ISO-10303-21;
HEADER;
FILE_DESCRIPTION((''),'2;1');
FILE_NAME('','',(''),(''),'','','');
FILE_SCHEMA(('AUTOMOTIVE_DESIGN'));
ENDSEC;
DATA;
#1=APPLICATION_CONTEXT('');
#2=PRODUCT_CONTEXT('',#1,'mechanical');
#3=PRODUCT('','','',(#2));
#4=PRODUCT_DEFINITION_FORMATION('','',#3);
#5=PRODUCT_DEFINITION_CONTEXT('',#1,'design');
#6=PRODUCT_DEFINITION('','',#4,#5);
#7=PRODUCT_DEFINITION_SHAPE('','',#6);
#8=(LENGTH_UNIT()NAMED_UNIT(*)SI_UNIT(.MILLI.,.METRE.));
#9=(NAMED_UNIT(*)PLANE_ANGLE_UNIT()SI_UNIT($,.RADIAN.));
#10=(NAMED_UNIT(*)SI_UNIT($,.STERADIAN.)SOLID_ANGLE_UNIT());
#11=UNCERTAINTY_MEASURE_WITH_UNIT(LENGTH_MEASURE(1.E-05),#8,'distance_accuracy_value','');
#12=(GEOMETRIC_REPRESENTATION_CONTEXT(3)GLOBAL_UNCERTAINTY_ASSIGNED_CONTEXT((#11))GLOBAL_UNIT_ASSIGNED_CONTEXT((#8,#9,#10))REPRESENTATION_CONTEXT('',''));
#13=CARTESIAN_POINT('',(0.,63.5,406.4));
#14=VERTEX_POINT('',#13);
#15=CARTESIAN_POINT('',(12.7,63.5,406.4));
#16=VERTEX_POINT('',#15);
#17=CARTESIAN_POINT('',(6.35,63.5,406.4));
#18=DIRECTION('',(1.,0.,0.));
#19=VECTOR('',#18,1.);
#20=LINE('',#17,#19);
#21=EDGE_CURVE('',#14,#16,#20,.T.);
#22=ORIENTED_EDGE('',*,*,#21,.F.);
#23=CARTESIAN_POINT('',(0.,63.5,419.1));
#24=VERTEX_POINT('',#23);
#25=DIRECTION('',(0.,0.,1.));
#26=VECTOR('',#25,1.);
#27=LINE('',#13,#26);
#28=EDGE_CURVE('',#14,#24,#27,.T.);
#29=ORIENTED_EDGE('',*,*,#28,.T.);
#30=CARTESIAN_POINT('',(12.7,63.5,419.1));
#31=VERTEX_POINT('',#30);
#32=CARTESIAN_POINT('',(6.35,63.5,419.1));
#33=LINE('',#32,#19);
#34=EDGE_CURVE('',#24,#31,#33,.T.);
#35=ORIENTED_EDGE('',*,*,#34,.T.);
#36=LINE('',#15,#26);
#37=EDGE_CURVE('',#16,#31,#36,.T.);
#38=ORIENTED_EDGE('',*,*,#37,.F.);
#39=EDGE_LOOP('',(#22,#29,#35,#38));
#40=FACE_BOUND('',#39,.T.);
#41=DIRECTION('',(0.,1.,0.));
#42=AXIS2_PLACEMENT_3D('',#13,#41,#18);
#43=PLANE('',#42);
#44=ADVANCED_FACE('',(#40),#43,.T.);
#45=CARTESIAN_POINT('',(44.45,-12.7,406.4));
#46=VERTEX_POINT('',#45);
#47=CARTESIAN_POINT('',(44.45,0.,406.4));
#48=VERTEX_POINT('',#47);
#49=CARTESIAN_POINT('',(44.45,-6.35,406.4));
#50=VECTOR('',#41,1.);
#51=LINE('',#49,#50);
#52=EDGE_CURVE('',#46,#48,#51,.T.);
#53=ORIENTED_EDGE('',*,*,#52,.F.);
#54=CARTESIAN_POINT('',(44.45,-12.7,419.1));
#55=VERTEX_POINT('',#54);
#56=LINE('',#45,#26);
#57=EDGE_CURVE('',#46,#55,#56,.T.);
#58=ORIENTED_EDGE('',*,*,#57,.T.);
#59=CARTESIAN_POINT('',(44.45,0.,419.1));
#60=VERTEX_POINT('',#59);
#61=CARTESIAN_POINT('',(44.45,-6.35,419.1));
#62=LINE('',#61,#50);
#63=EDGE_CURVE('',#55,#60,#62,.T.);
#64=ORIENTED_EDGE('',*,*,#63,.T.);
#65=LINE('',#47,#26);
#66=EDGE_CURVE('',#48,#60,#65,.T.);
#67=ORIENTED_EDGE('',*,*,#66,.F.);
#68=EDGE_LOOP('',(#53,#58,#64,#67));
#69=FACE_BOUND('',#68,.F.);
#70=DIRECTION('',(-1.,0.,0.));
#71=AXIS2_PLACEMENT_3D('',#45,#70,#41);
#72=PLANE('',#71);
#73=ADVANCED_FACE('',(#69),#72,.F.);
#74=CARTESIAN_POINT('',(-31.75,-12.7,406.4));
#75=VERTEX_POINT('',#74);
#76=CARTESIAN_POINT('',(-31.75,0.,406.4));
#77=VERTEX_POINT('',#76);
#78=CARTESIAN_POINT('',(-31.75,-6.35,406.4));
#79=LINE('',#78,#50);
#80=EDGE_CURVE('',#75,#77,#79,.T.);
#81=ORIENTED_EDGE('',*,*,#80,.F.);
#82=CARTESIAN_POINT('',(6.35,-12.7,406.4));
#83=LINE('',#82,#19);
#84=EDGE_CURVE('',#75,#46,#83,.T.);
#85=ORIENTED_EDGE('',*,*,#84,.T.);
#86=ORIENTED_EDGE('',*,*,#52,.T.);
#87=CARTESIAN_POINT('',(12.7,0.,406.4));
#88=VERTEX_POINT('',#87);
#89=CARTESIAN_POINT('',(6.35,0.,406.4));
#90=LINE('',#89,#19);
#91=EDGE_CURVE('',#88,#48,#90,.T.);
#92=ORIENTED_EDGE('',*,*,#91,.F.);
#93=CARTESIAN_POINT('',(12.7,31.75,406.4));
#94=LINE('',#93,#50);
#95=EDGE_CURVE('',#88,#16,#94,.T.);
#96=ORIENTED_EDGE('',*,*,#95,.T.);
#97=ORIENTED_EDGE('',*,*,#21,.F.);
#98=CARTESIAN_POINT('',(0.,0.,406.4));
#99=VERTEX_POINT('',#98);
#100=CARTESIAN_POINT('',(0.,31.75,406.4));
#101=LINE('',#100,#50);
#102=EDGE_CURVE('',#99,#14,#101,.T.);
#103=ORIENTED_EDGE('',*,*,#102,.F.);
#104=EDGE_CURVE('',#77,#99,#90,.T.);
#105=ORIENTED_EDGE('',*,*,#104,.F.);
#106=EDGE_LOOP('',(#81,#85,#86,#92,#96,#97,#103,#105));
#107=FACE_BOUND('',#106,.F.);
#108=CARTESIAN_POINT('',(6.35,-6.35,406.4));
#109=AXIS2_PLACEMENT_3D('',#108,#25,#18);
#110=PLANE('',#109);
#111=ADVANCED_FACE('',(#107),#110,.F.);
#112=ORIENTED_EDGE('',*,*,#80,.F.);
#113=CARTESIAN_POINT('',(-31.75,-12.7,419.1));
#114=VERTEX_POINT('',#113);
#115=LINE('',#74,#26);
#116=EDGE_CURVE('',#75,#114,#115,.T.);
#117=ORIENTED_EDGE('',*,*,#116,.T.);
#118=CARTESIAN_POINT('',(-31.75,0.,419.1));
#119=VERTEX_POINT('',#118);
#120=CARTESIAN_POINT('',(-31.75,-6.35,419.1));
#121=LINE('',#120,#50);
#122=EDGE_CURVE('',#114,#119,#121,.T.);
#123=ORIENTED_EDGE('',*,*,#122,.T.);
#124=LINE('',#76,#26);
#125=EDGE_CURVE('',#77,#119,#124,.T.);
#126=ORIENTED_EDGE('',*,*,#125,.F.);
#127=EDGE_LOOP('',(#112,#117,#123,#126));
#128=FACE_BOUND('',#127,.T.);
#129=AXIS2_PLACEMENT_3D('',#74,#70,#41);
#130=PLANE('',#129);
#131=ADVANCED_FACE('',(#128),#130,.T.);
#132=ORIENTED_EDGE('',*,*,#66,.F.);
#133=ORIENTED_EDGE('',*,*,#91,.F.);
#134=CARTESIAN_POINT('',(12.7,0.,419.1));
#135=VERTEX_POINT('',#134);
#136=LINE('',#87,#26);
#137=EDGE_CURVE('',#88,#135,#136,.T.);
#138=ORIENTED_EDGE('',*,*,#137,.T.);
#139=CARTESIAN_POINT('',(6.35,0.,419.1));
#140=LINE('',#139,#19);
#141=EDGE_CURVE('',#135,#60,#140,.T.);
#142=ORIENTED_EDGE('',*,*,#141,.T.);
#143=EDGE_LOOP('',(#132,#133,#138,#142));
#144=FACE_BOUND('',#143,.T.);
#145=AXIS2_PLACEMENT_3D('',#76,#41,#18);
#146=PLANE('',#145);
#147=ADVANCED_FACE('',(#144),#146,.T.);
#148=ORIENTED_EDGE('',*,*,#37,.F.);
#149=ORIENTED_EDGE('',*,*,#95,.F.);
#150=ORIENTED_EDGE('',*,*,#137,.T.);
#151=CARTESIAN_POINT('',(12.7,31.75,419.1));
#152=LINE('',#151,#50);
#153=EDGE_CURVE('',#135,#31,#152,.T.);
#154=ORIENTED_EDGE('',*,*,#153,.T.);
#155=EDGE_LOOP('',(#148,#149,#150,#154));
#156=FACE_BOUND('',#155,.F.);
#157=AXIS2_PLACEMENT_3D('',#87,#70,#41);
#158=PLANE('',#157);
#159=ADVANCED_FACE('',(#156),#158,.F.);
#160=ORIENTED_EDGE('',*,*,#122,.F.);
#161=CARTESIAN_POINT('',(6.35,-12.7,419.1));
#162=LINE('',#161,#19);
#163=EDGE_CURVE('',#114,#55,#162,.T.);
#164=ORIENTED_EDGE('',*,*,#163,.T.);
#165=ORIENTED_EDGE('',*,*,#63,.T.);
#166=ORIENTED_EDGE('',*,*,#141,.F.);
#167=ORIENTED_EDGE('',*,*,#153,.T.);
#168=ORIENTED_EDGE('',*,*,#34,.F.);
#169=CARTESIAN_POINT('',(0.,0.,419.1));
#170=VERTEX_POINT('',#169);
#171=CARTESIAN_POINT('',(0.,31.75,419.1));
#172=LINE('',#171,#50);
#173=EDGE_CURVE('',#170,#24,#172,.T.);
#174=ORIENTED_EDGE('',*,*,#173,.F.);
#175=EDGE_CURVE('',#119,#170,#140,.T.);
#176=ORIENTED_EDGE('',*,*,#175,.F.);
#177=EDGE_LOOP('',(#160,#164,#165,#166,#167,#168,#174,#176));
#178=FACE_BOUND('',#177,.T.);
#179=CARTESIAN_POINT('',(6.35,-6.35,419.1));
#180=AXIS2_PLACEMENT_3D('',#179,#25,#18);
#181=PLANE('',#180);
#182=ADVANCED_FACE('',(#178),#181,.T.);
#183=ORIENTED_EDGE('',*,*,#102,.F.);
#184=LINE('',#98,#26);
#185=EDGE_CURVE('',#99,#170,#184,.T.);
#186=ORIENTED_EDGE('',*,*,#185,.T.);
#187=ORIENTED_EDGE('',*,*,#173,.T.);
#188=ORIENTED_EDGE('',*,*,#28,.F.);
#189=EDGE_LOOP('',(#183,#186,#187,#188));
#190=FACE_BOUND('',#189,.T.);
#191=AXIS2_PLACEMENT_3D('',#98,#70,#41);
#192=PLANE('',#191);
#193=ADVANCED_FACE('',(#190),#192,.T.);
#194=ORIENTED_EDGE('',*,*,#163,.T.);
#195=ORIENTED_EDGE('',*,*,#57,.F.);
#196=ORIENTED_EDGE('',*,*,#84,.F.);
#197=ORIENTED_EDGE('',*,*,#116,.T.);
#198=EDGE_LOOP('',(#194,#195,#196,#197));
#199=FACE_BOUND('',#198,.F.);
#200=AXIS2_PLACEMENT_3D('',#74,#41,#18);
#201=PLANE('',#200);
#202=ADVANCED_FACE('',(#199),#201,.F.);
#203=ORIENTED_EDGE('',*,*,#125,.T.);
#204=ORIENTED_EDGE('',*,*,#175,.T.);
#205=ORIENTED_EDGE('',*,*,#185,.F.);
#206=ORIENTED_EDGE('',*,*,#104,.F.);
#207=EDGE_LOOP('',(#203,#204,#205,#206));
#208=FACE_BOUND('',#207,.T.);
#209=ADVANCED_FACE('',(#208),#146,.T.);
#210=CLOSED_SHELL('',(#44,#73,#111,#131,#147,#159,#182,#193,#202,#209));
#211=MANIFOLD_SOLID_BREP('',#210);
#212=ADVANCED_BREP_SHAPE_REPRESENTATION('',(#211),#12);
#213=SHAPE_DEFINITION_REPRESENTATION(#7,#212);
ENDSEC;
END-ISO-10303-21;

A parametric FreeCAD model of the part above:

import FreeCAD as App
import Part
import Sketcher
from FreeCAD import Vector
Q = App.Units.Quantity

doc = App.newDocument("Part")
body = doc.addObject("PartDesign::Body", "Body")

# Sketch on XY plane
sketch1 = body.newObject("Sketcher::SketchObject", "Sketch")
sketch1.AttachmentSupport = (doc.getObject("XY_Plane"), [""])
sketch1.MapMode = "FlatFace"
sketch1.AttachmentOffset = App.Placement(Vector(0, 0, 16 * 25.4), App.Rotation())
sketch1.addGeometry(Part.LineSegment(Vector(0, 64, 0), Vector(0, 0, 0)), False)
sketch1.addGeometry(Part.LineSegment(Vector(0, 0, 0), Vector(13, 0, 0)), False)
sketch1.addGeometry(Part.LineSegment(Vector(13, 0, 0), Vector(13, 64, 0)), False)
sketch1.addGeometry(Part.LineSegment(Vector(13, 64, 0), Vector(0, 64, 0)), False)
sketch1.addConstraint(Sketcher.Constraint("Coincident", 0, 2, 1, 1))
sketch1.addConstraint(Sketcher.Constraint("Coincident", 1, 2, 2, 1))
sketch1.addConstraint(Sketcher.Constraint("Coincident", 2, 2, 3, 1))
sketch1.addConstraint(Sketcher.Constraint("Coincident", 3, 2, 0, 1))
sketch1.addConstraint(Sketcher.Constraint("Vertical", 0))
sketch1.addConstraint(Sketcher.Constraint("Horizontal", 1))
sketch1.addConstraint(Sketcher.Constraint("Vertical", 2))
sketch1.addConstraint(Sketcher.Constraint("Horizontal", 3))
sketch1.addConstraint(Sketcher.Constraint("Coincident", 0, 2, -1, 1))
sketch1.addConstraint(Sketcher.Constraint("DistanceX", 1, 1, 1, 2, Q("0.5 in")))
sketch1.addConstraint(Sketcher.Constraint("DistanceY", 0, 2, 0, 1, Q("2.5 in")))
pad1 = body.newObject("PartDesign::Pad", "Pad")
pad1.Profile = sketch1
pad1.Length = Q("0.5 in")
body2 = doc.addObject("PartDesign::Body", "Body001")

# Sketch on XY plane
sketch2 = body2.newObject("Sketcher::SketchObject", "Sketch001")
sketch2.AttachmentSupport = (doc.getObject("XY_Plane001"), [""])
sketch2.MapMode = "FlatFace"
sketch2.AttachmentOffset = App.Placement(Vector(0, 0, 16 * 25.4), App.Rotation())
sketch2.addGeometry(Part.LineSegment(Vector(-32, 0, 0), Vector(-32, -13, 0)), False)
sketch2.addGeometry(Part.LineSegment(Vector(-32, -13, 0), Vector(44, -13, 0)), False)
sketch2.addGeometry(Part.LineSegment(Vector(44, -13, 0), Vector(44, 0, 0)), False)
sketch2.addGeometry(Part.LineSegment(Vector(44, 0, 0), Vector(-32, 0, 0)), False)
sketch2.addConstraint(Sketcher.Constraint("Coincident", 0, 2, 1, 1))
sketch2.addConstraint(Sketcher.Constraint("Coincident", 1, 2, 2, 1))
sketch2.addConstraint(Sketcher.Constraint("Coincident", 2, 2, 3, 1))
sketch2.addConstraint(Sketcher.Constraint("Coincident", 3, 2, 0, 1))
sketch2.addConstraint(Sketcher.Constraint("Vertical", 0))
sketch2.addConstraint(Sketcher.Constraint("Horizontal", 1))
sketch2.addConstraint(Sketcher.Constraint("Vertical", 2))
sketch2.addConstraint(Sketcher.Constraint("Horizontal", 3))
sketch2.addConstraint(Sketcher.Constraint("PointOnObject", 2, 2, -1))
sketch2.addConstraint(Sketcher.Constraint("DistanceX", 1, 1, 1, 2, Q("3 in")))
sketch2.addConstraint(Sketcher.Constraint("DistanceY", 0, 2, 0, 1, Q("0.5 in")))
sketch2.addConstraint(Sketcher.Constraint("DistanceX", 0, 2, -1, 1, Q("1.25 in")))
pad2 = body2.newObject("PartDesign::Pad", "Pad001")
pad2.Profile = sketch2
pad2.Length = Q("0.5 in")
doc.recompute()

boolean = body2.newObject("PartDesign::Boolean", "Boolean")
boolean.Type = "Fuse"
boolean.addObjects([body])

doc.recompute()
